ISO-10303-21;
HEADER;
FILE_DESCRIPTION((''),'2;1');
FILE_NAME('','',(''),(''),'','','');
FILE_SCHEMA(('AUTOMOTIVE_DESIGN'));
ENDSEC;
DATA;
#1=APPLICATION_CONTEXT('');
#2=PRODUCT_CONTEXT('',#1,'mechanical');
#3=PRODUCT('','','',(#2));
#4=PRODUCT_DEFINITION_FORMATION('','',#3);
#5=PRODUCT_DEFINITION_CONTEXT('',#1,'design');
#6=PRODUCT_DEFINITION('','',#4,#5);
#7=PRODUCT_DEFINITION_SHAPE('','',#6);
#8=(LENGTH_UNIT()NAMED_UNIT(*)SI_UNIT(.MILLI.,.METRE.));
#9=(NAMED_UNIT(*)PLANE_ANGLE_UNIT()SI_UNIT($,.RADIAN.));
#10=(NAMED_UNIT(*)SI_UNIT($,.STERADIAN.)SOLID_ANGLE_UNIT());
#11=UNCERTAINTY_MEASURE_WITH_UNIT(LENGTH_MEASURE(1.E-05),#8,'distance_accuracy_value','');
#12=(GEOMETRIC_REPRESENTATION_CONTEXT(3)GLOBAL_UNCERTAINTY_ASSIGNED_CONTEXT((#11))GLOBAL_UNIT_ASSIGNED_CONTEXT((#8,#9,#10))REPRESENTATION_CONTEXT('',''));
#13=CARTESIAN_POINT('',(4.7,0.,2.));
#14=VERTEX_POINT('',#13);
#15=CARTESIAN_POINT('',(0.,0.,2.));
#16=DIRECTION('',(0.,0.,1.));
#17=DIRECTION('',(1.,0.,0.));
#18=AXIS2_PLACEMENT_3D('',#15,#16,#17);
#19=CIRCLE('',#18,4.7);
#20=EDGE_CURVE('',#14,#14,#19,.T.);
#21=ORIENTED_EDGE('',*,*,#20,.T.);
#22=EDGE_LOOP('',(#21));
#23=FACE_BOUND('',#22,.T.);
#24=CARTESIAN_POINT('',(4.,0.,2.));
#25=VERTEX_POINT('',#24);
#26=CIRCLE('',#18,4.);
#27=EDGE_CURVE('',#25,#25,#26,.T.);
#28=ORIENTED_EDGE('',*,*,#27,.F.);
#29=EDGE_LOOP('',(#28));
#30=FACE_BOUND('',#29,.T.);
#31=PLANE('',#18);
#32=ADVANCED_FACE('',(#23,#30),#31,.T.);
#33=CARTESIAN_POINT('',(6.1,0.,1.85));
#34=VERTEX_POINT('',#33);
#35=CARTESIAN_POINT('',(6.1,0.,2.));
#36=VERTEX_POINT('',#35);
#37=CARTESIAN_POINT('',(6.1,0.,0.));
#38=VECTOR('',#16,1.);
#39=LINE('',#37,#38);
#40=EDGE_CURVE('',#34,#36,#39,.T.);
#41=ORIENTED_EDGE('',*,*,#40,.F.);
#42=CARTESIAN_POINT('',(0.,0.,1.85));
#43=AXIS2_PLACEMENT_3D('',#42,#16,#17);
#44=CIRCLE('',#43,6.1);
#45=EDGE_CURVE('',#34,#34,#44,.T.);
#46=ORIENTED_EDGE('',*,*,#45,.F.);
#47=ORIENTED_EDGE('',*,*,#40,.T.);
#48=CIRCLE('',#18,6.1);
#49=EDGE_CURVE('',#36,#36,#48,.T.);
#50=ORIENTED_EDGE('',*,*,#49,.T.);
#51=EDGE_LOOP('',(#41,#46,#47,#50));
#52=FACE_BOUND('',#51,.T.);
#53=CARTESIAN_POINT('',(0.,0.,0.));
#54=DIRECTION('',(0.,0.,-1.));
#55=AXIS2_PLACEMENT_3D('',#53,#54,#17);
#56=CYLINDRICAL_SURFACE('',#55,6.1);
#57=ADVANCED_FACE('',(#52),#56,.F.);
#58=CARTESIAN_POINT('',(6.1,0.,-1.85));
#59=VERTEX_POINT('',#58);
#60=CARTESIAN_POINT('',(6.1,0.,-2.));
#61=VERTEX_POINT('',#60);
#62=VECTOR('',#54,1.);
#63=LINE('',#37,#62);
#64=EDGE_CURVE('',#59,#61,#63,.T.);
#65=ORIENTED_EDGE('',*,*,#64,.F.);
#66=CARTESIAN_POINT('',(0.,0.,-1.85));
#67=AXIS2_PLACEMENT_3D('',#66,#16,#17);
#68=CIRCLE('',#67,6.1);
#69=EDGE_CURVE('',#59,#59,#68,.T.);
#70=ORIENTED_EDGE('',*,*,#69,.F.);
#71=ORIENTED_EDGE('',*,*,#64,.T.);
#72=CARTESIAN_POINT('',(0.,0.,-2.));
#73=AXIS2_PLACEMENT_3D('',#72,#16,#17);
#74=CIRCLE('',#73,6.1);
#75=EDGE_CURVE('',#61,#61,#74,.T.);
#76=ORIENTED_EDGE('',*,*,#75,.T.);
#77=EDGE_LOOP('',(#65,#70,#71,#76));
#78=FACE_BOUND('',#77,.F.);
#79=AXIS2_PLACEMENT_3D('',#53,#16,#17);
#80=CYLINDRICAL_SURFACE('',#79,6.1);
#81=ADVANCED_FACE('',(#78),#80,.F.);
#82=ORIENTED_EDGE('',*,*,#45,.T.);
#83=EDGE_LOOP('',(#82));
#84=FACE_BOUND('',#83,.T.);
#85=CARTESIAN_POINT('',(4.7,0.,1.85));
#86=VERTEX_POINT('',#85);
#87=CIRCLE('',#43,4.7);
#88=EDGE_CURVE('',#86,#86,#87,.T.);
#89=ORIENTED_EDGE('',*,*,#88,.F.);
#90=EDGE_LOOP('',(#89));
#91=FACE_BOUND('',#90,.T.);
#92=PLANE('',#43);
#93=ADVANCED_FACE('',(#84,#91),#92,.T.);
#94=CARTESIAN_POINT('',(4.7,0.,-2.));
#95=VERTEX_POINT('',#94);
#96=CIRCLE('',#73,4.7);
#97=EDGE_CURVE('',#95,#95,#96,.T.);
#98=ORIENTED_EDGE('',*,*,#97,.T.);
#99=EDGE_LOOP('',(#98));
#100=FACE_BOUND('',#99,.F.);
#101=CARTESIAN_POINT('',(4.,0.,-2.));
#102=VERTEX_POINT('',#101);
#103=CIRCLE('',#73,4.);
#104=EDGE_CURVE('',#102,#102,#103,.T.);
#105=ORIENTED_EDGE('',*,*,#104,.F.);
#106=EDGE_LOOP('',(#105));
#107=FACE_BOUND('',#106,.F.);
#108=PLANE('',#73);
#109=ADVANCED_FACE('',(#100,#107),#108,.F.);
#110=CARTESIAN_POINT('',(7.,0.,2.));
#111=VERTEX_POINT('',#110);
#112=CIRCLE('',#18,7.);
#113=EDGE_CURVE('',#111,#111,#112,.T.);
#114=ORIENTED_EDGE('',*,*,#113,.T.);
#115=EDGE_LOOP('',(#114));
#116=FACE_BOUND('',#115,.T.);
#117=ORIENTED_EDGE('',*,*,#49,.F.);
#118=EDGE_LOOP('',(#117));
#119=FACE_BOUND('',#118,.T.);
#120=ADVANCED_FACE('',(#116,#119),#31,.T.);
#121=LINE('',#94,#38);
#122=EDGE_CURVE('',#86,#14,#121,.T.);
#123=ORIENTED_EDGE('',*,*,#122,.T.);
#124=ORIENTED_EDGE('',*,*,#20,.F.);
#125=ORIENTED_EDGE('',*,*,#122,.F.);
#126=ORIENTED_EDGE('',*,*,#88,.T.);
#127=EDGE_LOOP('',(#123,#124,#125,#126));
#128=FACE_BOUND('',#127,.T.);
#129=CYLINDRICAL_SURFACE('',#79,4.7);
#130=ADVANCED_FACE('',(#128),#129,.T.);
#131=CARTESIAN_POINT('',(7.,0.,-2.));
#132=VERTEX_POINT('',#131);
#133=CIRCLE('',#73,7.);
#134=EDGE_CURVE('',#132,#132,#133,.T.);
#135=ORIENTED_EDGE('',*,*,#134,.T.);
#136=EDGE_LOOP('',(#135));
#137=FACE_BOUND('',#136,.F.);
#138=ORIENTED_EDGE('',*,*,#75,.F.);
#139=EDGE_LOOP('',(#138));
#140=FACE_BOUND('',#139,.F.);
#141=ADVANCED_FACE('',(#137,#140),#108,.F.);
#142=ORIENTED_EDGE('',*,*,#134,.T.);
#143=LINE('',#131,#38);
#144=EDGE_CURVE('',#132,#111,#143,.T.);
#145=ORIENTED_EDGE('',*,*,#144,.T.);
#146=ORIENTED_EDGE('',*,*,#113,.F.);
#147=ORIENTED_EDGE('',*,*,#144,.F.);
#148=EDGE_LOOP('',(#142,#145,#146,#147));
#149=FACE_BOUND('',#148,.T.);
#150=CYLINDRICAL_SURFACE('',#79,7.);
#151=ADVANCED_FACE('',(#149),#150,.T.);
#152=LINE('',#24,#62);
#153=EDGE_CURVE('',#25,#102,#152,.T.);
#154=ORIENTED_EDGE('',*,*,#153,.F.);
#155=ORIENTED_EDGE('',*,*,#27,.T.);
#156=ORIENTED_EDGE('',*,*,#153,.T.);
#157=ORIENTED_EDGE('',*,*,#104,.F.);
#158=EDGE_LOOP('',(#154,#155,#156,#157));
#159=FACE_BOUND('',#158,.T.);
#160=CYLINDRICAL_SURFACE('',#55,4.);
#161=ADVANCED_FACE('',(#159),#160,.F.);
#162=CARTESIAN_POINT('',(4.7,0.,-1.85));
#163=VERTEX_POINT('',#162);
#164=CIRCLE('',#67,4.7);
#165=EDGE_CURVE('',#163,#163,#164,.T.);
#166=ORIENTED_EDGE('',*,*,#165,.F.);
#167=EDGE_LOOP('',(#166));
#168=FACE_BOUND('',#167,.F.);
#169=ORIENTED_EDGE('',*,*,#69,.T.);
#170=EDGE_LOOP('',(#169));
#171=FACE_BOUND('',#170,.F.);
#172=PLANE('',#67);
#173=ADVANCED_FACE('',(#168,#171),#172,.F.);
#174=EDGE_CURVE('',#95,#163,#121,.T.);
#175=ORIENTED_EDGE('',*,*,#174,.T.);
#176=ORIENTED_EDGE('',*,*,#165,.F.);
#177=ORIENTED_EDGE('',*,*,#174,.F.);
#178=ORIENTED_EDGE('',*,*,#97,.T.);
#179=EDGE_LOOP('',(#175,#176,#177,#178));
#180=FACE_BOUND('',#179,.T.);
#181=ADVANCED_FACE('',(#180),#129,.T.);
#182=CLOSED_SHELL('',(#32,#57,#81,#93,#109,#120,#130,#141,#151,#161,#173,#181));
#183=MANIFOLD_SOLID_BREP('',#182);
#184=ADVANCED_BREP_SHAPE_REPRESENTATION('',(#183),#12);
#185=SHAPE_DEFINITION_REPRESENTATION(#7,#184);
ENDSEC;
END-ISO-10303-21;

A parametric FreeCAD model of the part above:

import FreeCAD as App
import Part
import Sketcher

V = App.Vector
Q = App.Units.Quantity

doc = App.newDocument("Part")
params = doc.addObject("Spreadsheet::Sheet", "Params")
for row, (alias, value) in enumerate([
    ("sketch1_diameter", "12.2 mm"),
    ("sketch1_diameter2", "9.4 mm"),
    ("pad1_length", "3.7 mm"),
    ("sketch2_diameter", "14 mm"),
    ("sketch2_diameter2", "8 mm"),
    ("sketch2_diameter3", "12.2 mm"),
    ("sketch2_diameter4", "9.4 mm"),
    ("pad2_length", "4 mm"),
], start=1):
    params.set(f"A{row}", alias)
    params.set(f"B{row}", "=" + value)
    params.setAlias(f"B{row}", alias)

body = doc.addObject("PartDesign::Body", "Body")

# Sketch on XY plane
sketch1 = body.newObject("Sketcher::SketchObject", "Sketch")
sketch1.AttachmentSupport = (doc.getObject("XY_Plane"), [""])
sketch1.MapMode = "FlatFace"
sketch1.addGeometry(Part.Circle(V(0, 0, 0), V(0, 0, 1), 6.1), False)
sketch1.addGeometry(Part.Circle(V(0, 0, 0), V(0, 0, 1), 4.7), False)
sketch1.addConstraint(Sketcher.Constraint("Coincident", 0, 3, -1, 1))
sketch1.addConstraint(Sketcher.Constraint("Coincident", 1, 3, -1, 1))
sketch1.addConstraint(Sketcher.Constraint("Diameter", 0, Q("12.2 mm")))
sketch1.addConstraint(Sketcher.Constraint("Diameter", 1, Q("9.4 mm")))
sketch1.setExpression("Constraints[2]", "Params.sketch1_diameter")
sketch1.setExpression("Constraints[3]", "Params.sketch1_diameter2")
pad1 = body.newObject("PartDesign::Pad", "Pad")
pad1.Profile = sketch1
pad1.setExpression("Length", "Params.pad1_length")
pad1.Midplane = True

# Sketch on XY plane
sketch2 = body.newObject("Sketcher::SketchObject", "Sketch001")
sketch2.AttachmentSupport = (doc.getObject("XY_Plane"), [""])
sketch2.MapMode = "FlatFace"
sketch2.addGeometry(Part.Circle(V(0, 0, 0), V(0, 0, 1), 7), False)
sketch2.addGeometry(Part.Circle(V(0, 0, 0), V(0, 0, 1), 6.1), False)
sketch2.addGeometry(Part.Circle(V(0, 0, 0), V(0, 0, 1), 4.7), False)
sketch2.addGeometry(Part.Circle(V(0, 0, 0), V(0, 0, 1), 4), False)
sketch2.addConstraint(Sketcher.Constraint("Coincident", 0, 3, -1, 1))
sketch2.addConstraint(Sketcher.Constraint("Coincident", 1, 3, -1, 1))
sketch2.addConstraint(Sketcher.Constraint("Coincident", 2, 3, -1, 1))
sketch2.addConstraint(Sketcher.Constraint("Coincident", 3, 3, -1, 1))
sketch2.addConstraint(Sketcher.Constraint("Diameter", 0, Q("14 mm")))
sketch2.addConstraint(Sketcher.Constraint("Diameter", 3, Q("8 mm")))
sketch2.addConstraint(Sketcher.Constraint("Diameter", 1, Q("12.2 mm")))
sketch2.addConstraint(Sketcher.Constraint("Diameter", 2, Q("9.4 mm")))
sketch2.setExpression("Constraints[4]", "Params.sketch2_diameter")
sketch2.setExpression("Constraints[5]", "Params.sketch2_diameter2")
sketch2.setExpression("Constraints[6]", "Params.sketch2_diameter3")
sketch2.setExpression("Constraints[7]", "Params.sketch2_diameter4")
pad2 = body.newObject("PartDesign::Pad", "Pad001")
pad2.Profile = sketch2
pad2.setExpression("Length", "Params.pad2_length")
pad2.Midplane = True

doc.recompute()
